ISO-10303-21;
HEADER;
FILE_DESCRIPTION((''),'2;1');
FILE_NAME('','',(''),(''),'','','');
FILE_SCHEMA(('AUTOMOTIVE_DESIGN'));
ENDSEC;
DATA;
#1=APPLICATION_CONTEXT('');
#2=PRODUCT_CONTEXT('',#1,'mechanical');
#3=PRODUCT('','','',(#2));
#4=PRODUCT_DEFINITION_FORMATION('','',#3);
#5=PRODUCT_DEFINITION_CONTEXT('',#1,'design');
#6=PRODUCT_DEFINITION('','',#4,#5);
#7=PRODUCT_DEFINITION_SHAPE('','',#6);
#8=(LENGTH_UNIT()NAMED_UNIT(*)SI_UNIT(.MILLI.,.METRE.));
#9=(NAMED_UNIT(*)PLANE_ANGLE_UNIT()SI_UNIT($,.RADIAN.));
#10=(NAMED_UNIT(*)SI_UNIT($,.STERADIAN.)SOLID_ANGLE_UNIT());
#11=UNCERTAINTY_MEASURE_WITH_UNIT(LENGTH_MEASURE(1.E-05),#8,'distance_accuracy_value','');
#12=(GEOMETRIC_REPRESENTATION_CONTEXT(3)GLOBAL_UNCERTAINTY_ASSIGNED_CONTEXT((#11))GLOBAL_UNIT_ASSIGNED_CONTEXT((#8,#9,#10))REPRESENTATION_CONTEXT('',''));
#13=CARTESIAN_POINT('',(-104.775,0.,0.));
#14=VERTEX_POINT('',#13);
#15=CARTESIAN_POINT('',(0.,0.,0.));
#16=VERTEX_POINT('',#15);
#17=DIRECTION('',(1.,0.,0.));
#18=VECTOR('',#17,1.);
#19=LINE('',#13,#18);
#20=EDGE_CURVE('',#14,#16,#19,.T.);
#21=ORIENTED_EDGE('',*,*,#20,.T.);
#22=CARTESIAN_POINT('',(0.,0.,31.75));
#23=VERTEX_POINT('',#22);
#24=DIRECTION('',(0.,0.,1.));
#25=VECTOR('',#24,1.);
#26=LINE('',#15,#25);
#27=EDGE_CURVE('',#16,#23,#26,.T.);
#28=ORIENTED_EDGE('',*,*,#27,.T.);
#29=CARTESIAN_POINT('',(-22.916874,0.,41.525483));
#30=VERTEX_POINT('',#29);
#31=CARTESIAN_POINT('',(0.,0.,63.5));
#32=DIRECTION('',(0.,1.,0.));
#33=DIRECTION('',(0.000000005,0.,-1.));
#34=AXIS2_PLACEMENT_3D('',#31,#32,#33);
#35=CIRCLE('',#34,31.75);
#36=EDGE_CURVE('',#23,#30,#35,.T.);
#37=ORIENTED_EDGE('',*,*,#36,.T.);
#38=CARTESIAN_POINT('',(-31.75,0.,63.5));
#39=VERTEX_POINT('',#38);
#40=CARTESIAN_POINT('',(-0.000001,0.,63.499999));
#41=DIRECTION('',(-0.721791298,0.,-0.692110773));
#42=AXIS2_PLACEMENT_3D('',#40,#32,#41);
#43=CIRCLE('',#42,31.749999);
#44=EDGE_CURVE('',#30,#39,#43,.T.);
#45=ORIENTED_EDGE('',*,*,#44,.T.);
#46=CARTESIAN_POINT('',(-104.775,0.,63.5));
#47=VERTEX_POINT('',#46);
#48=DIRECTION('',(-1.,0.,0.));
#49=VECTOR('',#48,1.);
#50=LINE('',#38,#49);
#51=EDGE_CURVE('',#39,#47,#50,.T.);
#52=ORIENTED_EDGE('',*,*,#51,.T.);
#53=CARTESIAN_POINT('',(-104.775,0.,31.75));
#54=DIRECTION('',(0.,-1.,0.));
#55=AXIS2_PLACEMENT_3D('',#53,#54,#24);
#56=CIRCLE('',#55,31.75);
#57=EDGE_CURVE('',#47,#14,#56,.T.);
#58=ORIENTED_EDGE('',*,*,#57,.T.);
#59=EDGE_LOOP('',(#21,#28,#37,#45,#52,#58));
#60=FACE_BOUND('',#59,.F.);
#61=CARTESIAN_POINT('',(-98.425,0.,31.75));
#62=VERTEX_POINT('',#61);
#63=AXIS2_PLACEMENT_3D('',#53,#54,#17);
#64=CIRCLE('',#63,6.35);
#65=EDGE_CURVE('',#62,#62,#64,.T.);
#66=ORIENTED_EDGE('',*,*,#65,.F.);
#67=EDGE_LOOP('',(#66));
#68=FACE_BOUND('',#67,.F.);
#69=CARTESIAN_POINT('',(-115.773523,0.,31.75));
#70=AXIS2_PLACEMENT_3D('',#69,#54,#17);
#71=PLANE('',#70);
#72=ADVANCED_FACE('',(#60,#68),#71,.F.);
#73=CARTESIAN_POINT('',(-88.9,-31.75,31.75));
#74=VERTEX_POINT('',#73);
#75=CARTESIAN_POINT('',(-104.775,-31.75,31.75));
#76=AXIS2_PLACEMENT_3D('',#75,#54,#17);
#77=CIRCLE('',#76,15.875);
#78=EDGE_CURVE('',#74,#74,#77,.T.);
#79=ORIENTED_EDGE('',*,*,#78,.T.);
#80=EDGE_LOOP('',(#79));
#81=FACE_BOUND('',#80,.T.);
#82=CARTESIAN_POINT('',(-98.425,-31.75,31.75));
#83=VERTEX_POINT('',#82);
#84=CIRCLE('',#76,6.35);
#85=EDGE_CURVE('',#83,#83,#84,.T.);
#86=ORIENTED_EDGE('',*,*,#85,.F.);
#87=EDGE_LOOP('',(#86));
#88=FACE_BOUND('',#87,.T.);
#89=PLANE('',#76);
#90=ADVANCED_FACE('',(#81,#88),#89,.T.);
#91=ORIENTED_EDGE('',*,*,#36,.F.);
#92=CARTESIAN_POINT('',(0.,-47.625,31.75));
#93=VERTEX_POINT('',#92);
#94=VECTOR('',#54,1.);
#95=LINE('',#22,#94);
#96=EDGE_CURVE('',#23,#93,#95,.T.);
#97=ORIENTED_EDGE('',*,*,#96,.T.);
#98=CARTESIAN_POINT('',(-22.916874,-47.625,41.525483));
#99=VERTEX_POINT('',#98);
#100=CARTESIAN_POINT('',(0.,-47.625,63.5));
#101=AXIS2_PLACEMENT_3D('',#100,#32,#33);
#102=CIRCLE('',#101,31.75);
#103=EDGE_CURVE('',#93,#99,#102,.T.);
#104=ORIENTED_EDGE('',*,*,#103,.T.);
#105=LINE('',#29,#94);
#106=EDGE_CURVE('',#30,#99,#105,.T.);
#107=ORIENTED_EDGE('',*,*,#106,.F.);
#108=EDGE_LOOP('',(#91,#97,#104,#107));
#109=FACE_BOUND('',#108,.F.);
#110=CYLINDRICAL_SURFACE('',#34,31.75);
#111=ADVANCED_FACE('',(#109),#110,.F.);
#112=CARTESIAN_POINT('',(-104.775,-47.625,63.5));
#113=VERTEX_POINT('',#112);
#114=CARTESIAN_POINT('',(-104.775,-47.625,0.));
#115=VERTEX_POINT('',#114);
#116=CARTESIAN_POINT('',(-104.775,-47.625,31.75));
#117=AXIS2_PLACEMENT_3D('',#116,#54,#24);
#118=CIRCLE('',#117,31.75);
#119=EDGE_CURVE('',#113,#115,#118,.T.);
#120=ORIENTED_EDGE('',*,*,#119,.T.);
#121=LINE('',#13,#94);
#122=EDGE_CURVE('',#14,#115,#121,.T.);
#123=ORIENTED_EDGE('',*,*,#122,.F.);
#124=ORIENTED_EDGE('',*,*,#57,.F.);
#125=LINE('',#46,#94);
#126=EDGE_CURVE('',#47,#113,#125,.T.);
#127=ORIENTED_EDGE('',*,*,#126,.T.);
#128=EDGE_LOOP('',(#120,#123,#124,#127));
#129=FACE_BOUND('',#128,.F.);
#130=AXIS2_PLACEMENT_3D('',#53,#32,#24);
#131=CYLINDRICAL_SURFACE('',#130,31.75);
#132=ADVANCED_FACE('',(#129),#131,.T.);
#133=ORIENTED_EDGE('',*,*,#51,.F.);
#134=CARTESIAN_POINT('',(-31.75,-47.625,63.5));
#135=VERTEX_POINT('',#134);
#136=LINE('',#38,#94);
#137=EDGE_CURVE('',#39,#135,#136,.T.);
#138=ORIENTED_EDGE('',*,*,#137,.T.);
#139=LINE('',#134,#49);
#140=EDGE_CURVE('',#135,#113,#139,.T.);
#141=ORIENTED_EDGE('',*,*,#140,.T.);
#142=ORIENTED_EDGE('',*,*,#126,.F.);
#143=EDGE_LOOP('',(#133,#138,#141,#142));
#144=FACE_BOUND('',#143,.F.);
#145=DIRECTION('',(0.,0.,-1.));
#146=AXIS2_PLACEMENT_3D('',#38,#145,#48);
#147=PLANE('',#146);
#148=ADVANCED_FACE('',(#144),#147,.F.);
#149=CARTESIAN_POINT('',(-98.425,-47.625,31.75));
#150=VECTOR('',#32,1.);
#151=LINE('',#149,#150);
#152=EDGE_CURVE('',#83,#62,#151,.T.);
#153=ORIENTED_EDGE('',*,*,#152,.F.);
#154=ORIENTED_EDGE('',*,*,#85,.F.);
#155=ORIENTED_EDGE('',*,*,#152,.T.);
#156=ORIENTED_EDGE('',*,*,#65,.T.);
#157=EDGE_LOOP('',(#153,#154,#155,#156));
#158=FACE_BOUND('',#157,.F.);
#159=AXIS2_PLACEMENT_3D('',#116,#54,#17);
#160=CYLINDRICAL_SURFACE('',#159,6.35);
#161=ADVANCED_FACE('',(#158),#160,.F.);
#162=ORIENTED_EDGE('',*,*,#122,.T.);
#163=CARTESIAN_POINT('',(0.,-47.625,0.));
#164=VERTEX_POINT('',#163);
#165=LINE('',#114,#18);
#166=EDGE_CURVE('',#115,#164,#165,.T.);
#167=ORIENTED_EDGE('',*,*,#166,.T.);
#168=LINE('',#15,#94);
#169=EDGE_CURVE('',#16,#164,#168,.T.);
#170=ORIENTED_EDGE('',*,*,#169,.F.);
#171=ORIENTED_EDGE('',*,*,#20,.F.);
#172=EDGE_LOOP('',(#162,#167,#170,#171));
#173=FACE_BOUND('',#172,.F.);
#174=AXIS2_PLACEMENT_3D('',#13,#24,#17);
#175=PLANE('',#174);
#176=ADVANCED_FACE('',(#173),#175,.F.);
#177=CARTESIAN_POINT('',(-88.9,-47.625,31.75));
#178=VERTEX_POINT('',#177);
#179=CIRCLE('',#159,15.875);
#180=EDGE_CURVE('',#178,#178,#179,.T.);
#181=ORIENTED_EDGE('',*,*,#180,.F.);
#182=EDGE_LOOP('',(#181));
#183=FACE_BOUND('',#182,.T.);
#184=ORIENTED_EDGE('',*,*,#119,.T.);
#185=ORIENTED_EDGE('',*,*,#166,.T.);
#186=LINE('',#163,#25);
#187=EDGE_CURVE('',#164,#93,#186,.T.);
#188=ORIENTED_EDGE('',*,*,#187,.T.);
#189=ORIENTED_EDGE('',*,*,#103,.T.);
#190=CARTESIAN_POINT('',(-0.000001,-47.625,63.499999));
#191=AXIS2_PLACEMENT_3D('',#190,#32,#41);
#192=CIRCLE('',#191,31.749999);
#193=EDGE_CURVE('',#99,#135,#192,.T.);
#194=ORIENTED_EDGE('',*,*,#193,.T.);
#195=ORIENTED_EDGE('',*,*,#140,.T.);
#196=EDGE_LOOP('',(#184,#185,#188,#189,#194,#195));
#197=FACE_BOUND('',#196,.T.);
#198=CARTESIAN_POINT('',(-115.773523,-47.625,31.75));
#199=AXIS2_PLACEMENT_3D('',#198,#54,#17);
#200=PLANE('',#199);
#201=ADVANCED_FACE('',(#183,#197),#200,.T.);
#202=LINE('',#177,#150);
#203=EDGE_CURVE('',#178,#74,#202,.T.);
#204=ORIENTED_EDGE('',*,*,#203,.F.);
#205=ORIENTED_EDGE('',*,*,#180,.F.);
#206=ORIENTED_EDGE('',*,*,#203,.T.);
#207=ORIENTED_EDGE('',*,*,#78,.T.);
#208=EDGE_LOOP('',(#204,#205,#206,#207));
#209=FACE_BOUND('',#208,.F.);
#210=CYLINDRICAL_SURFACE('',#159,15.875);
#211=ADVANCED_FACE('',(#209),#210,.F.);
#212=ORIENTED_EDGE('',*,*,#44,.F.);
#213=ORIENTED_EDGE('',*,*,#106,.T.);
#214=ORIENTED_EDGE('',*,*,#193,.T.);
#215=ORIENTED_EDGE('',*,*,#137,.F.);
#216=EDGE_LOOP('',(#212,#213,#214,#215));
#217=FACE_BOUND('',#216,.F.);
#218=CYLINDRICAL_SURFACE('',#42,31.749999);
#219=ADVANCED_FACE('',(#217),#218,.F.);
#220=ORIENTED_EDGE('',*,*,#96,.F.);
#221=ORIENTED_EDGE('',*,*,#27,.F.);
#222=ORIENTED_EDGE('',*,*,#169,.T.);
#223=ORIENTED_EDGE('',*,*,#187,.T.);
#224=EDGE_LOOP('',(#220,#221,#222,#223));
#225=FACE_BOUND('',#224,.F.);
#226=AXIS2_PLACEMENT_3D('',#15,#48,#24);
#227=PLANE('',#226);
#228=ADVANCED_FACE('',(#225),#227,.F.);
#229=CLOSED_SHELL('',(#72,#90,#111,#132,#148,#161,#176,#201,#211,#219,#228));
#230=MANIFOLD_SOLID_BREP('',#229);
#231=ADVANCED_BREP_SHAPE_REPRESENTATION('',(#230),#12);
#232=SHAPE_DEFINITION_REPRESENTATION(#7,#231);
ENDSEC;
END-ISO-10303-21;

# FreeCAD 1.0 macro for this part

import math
import FreeCAD as App
import Part
import Sketcher
Q = App.Units.Quantity

doc = App.newDocument("Part")
body = doc.addObject("PartDesign::Body", "Body")

sketch1 = body.newObject("Sketcher::SketchObject", "Sketch")
sketch1.AttachmentSupport = (doc.getObject("XZ_Plane"), [""])
sketch1.MapMode = "FlatFace"
sketch1.addGeometry([
    Part.ArcOfCircle(Part.Circle(App.Vector(-105, 32, 0), App.Vector(0, 0, 1), 32), math.radians(90), math.radians(270)),
    Part.LineSegment(App.Vector(-105, 0, 0), App.Vector(0, 0, 0)),
    Part.LineSegment(App.Vector(0, 0, 0), App.Vector(0, 32, 0)),
    Part.ArcOfCircle(Part.Circle(App.Vector(0, 64, 0), App.Vector(0, 0, 1), 32), math.radians(-136), math.radians(-90)),
    Part.ArcOfCircle(Part.Circle(App.Vector(0, 63, 0), App.Vector(0, 0, 1), 32), math.radians(180), math.radians(224)),
    Part.LineSegment(App.Vector(-32, 64, 0), App.Vector(-105, 64, 0)),
], False)
sketch1.addConstraint([
    Sketcher.Constraint("Tangent", 0, 2, 1, 1),
    Sketcher.Constraint("Coincident", 1, 2, 2, 1),
    Sketcher.Constraint("Coincident", 2, 2, 3, 2),
    Sketcher.Constraint("Tangent", 3, 1, 4, 2),
    Sketcher.Constraint("Coincident", 4, 1, 5, 1),
    Sketcher.Constraint("Tangent", 5, 2, 0, 1),
    Sketcher.Constraint("Horizontal", 1),
    Sketcher.Constraint("Vertical", 2),
    Sketcher.Constraint("Horizontal", 5),
    Sketcher.Constraint("Coincident", 1, 2, -1, 1),
    Sketcher.Constraint("Equal", 0, 3),
    Sketcher.Constraint("Equal", 3, 4),
    Sketcher.Constraint("PointOnObject", 3, 3, -2),
    Sketcher.Constraint("Horizontal", 0, 3, 2, 2),
    Sketcher.Constraint("Radius", 0, Q("1.25 in")),
    Sketcher.Constraint("DistanceX", 1, 1, 1, 2, Q("4.125 in")),
    Sketcher.Constraint("DistanceX", 3, 1, -1, 1, Q("22.916874 mm")),
])
pad1 = body.newObject("PartDesign::Pad", "Pad")
pad1.Profile = sketch1
pad1.Length = Q("1.875 in")

sketch2 = body.newObject("Sketcher::SketchObject", "Sketch001")
sketch2.AttachmentSupport = (doc.getObject("XZ_Plane"), [""])
sketch2.MapMode = "FlatFace"
sketch2.AttachmentOffset = App.Placement(App.Vector(0, 0, 1.875 * 25.4), App.Rotation())
sketch2.addGeometry(Part.Circle(App.Vector(-105, 32, 0), App.Vector(0, 0, 1), 6), False)
sketch2.addConstraint([
    Sketcher.Constraint("Diameter", 0, Q("0.5 in")),
    Sketcher.Constraint("DistanceY", -1, 1, 0, 3, Q("1.25 in")),
    Sketcher.Constraint("DistanceX", 0, 3, -1, 1, Q("4.125 in")),
])
pocket1 = body.newObject("PartDesign::Pocket", "Pocket")
pocket1.Profile = sketch2
pocket1.Length = Q("1.875 in")

sketch3 = body.newObject("Sketcher::SketchObject", "Sketch002")
sketch3.AttachmentSupport = (doc.getObject("XZ_Plane"), [""])
sketch3.MapMode = "FlatFace"
sketch3.AttachmentOffset = App.Placement(App.Vector(0, 0, 1.875 * 25.4), App.Rotation())
sketch3.addGeometry([
    Part.Circle(App.Vector(-105, 32, 0), App.Vector(0, 0, 1), 16),
    Part.Circle(App.Vector(-105, 32, 0), App.Vector(0, 0, 1), 6),
], False)
sketch3.addConstraint([
    Sketcher.Constraint("Coincident", 1, 3, 0, 3),
    Sketcher.Constraint("Diameter", 1, Q("0.5 in")),
    Sketcher.Constraint("Diameter", 0, Q("1.25 in")),
    Sketcher.Constraint("DistanceY", -1, 1, 0, 3, Q("1.25 in")),
    Sketcher.Constraint("DistanceX", 0, 3, -1, 1, Q("4.125 in")),
])
pocket2 = body.newObject("PartDesign::Pocket", "Pocket001")
pocket2.Profile = sketch3
pocket2.Length = Q("0.625 in")

doc.recompute()
